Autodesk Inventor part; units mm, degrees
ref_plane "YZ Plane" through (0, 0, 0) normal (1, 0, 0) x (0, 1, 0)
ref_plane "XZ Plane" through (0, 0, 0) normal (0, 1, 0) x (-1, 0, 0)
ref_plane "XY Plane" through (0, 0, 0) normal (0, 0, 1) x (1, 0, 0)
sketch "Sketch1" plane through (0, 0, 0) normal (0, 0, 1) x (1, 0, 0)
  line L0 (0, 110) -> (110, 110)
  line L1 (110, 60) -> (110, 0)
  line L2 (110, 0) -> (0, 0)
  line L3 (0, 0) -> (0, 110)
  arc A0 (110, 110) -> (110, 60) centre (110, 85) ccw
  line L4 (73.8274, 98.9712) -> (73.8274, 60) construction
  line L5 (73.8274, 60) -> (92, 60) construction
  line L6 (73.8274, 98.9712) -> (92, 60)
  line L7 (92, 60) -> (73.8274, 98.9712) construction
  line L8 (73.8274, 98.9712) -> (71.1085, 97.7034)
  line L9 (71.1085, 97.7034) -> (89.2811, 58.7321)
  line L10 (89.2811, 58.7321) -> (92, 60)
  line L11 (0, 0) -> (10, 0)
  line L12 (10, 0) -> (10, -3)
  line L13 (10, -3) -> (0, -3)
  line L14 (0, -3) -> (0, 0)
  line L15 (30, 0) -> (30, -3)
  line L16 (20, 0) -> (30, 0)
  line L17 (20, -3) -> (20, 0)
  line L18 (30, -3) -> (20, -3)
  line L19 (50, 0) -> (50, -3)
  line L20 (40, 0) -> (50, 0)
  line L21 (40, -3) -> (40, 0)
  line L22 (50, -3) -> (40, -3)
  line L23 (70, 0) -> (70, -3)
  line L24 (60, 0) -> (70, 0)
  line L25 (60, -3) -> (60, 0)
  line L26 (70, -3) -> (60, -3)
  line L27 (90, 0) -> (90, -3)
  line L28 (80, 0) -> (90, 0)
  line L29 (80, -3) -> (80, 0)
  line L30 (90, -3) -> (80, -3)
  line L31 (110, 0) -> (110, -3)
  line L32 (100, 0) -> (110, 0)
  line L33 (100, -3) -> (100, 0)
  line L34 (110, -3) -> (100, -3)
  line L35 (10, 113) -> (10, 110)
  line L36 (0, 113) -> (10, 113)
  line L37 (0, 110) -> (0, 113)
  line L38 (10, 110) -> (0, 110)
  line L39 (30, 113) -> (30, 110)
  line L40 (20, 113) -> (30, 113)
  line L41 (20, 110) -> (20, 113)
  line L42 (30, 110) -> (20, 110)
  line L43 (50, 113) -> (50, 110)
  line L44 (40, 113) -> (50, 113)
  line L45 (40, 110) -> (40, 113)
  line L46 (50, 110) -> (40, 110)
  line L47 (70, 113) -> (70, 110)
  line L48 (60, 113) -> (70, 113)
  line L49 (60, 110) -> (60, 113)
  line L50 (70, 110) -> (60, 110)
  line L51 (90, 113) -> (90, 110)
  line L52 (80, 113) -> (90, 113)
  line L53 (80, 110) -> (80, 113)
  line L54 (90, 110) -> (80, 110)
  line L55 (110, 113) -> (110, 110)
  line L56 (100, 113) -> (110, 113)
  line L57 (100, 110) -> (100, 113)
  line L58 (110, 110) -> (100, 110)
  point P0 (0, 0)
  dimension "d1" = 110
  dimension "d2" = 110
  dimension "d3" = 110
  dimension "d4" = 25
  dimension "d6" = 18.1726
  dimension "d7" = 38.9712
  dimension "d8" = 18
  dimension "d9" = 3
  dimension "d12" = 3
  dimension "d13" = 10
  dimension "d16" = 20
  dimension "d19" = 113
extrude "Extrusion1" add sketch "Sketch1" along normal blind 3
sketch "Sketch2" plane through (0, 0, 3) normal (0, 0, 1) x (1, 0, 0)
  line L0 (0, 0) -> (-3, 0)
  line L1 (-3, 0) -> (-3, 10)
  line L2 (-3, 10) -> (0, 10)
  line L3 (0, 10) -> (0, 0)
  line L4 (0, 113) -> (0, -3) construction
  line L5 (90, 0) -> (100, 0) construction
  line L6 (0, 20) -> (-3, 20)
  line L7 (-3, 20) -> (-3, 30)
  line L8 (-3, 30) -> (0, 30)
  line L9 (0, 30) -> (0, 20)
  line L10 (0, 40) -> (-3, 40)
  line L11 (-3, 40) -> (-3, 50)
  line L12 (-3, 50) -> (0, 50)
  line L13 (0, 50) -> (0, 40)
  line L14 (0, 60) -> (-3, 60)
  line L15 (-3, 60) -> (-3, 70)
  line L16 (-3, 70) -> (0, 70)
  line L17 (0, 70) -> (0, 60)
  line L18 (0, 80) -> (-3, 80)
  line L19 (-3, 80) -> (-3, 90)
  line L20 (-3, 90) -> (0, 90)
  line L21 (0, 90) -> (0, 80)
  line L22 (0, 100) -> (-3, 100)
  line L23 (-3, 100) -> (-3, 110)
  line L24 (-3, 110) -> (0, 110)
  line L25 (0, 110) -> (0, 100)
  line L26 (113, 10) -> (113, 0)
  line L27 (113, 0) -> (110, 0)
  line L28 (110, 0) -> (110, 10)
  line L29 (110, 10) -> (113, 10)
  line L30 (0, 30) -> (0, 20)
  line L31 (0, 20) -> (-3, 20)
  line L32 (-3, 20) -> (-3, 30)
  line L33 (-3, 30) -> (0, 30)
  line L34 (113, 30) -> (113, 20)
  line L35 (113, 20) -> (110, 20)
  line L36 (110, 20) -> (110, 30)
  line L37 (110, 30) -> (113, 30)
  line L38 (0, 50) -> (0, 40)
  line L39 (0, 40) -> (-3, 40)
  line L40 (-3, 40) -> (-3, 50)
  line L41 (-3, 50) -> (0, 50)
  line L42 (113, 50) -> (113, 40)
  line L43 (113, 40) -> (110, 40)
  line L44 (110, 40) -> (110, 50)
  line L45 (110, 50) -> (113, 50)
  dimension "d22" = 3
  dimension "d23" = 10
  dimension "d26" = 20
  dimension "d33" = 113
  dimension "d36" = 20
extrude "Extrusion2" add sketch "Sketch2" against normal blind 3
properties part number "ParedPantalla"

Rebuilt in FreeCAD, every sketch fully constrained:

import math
import FreeCAD as App
import Part
import Sketcher

V = App.Vector
Q = App.Units.Quantity

doc = App.newDocument("Part")
params = doc.addObject("Spreadsheet::Sheet", "Params")
for row, (alias, value) in enumerate([
    ("sketch1_radius", "25 mm"),
    ("sketch1_width", "10 mm"),
    ("sketch1_height", "3 mm"),
    ("sketch1_length", "3 mm"),
    ("sketch1_length2", "43 mm"),
    ("pad1_length", "3 mm"),
    ("sketch2_width", "3 mm"),
    ("sketch2_height", "10 mm"),
    ("pad2_length", "3 mm"),
], start=1):
    params.set(f"A{row}", alias)
    params.set(f"B{row}", "=" + value)
    params.setAlias(f"B{row}", alias)

body = doc.addObject("PartDesign::Body", "Body")

sketch1 = body.newObject("Sketcher::SketchObject", "Sketch")
sketch1.AttachmentSupport = (doc.getObject("XY_Plane"), [""])
sketch1.MapMode = "FlatFace"
sketch1.addGeometry([
    Part.LineSegment(V(0, 113, 0), V(0, -3, 0)),
    Part.LineSegment(V(0, -3, 0), V(10, -3, 0)),
    Part.LineSegment(V(10, -3, 0), V(10, 0, 0)),
    Part.LineSegment(V(10, 0, 0), V(20, 0, 0)),
    Part.LineSegment(V(20, 0, 0), V(20, -3, 0)),
    Part.LineSegment(V(20, -3, 0), V(30, -3, 0)),
    Part.LineSegment(V(30, -3, 0), V(30, 0, 0)),
    Part.LineSegment(V(30, 0, 0), V(40, 0, 0)),
    Part.LineSegment(V(40, 0, 0), V(40, -3, 0)),
    Part.LineSegment(V(40, -3, 0), V(50, -3, 0)),
    Part.LineSegment(V(50, -3, 0), V(50, 0, 0)),
    Part.LineSegment(V(50, 0, 0), V(60, 0, 0)),
    Part.LineSegment(V(60, 0, 0), V(60, -3, 0)),
    Part.LineSegment(V(60, -3, 0), V(70, -3, 0)),
    Part.LineSegment(V(70, -3, 0), V(70, 0, 0)),
    Part.LineSegment(V(70, 0, 0), V(80, 0, 0)),
    Part.LineSegment(V(80, 0, 0), V(80, -3, 0)),
    Part.LineSegment(V(80, -3, 0), V(90, -3, 0)),
    Part.LineSegment(V(90, -3, 0), V(90, 0, 0)),
    Part.LineSegment(V(90, 0, 0), V(100, 0, 0)),
    Part.LineSegment(V(100, 0, 0), V(100, -3, 0)),
    Part.LineSegment(V(100, -3, 0), V(110, -3, 0)),
    Part.LineSegment(V(110, -3, 0), V(110, 60, 0)),
    Part.ArcOfCircle(Part.Circle(V(110, 85, 0), V(0, 0, 1), 25), math.radians(90), math.radians(270)),
    Part.LineSegment(V(110, 110, 0), V(110, 113, 0)),
    Part.LineSegment(V(110, 113, 0), V(100, 113, 0)),
    Part.LineSegment(V(100, 113, 0), V(100, 110, 0)),
    Part.LineSegment(V(100, 110, 0), V(90, 110, 0)),
    Part.LineSegment(V(90, 110, 0), V(90, 113, 0)),
    Part.LineSegment(V(90, 113, 0), V(80, 113, 0)),
    Part.LineSegment(V(80, 113, 0), V(80, 110, 0)),
    Part.LineSegment(V(80, 110, 0), V(70, 110, 0)),
    Part.LineSegment(V(70, 110, 0), V(70, 113, 0)),
    Part.LineSegment(V(70, 113, 0), V(60, 113, 0)),
    Part.LineSegment(V(60, 113, 0), V(60, 110, 0)),
    Part.LineSegment(V(60, 110, 0), V(50, 110, 0)),
    Part.LineSegment(V(50, 110, 0), V(50, 113, 0)),
    Part.LineSegment(V(50, 113, 0), V(40, 113, 0)),
    Part.LineSegment(V(40, 113, 0), V(40, 110, 0)),
    Part.LineSegment(V(40, 110, 0), V(30, 110, 0)),
    Part.LineSegment(V(30, 110, 0), V(30, 113, 0)),
    Part.LineSegment(V(30, 113, 0), V(20, 113, 0)),
    Part.LineSegment(V(20, 113, 0), V(20, 110, 0)),
    Part.LineSegment(V(20, 110, 0), V(10, 110, 0)),
    Part.LineSegment(V(10, 110, 0), V(10, 113, 0)),
    Part.LineSegment(V(10, 113, 0), V(0, 113, 0)),
    Part.LineSegment(V(73.8, 99, 0), V(92, 60, 0)),
    Part.LineSegment(V(92, 60, 0), V(89.3, 58.7, 0)),
    Part.LineSegment(V(89.3, 58.7, 0), V(71.1, 97.7, 0)),
    Part.LineSegment(V(71.1, 97.7, 0), V(73.8, 99, 0)),
], False)
sketch1.addConstraint([
    Sketcher.Constraint("Coincident", 0, 2, 1, 1),
    Sketcher.Constraint("Coincident", 1, 2, 2, 1),
    Sketcher.Constraint("Coincident", 2, 2, 3, 1),
    Sketcher.Constraint("Coincident", 3, 2, 4, 1),
    Sketcher.Constraint("Coincident", 4, 2, 5, 1),
    Sketcher.Constraint("Coincident", 5, 2, 6, 1),
    Sketcher.Constraint("Coincident", 6, 2, 7, 1),
    Sketcher.Constraint("Coincident", 7, 2, 8, 1),
    Sketcher.Constraint("Coincident", 8, 2, 9, 1),
    Sketcher.Constraint("Coincident", 9, 2, 10, 1),
    Sketcher.Constraint("Coincident", 10, 2, 11, 1),
    Sketcher.Constraint("Coincident", 11, 2, 12, 1),
    Sketcher.Constraint("Coincident", 12, 2, 13, 1),
    Sketcher.Constraint("Coincident", 13, 2, 14, 1),
    Sketcher.Constraint("Coincident", 14, 2, 15, 1),
    Sketcher.Constraint("Coincident", 15, 2, 16, 1),
    Sketcher.Constraint("Coincident", 16, 2, 17, 1),
    Sketcher.Constraint("Coincident", 17, 2, 18, 1),
    Sketcher.Constraint("Coincident", 18, 2, 19, 1),
    Sketcher.Constraint("Coincident", 19, 2, 20, 1),
    Sketcher.Constraint("Coincident", 20, 2, 21, 1),
    Sketcher.Constraint("Coincident", 21, 2, 22, 1),
    Sketcher.Constraint("Coincident", 22, 2, 23, 2),
    Sketcher.Constraint("Coincident", 23, 1, 24, 1),
    Sketcher.Constraint("Coincident", 24, 2, 25, 1),
    Sketcher.Constraint("Coincident", 25, 2, 26, 1),
    Sketcher.Constraint("Coincident", 26, 2, 27, 1),
    Sketcher.Constraint("Coincident", 27, 2, 28, 1),
    Sketcher.Constraint("Coincident", 28, 2, 29, 1),
    Sketcher.Constraint("Coincident", 29, 2, 30, 1),
    Sketcher.Constraint("Coincident", 30, 2, 31, 1),
    Sketcher.Constraint("Coincident", 31, 2, 32, 1),
    Sketcher.Constraint("Coincident", 32, 2, 33, 1),
    Sketcher.Constraint("Coincident", 33, 2, 34, 1),
    Sketcher.Constraint("Coincident", 34, 2, 35, 1),
    Sketcher.Constraint("Coincident", 35, 2, 36, 1),
    Sketcher.Constraint("Coincident", 36, 2, 37, 1),
    Sketcher.Constraint("Coincident", 37, 2, 38, 1),
    Sketcher.Constraint("Coincident", 38, 2, 39, 1),
    Sketcher.Constraint("Coincident", 39, 2, 40, 1),
    Sketcher.Constraint("Coincident", 40, 2, 41, 1),
    Sketcher.Constraint("Coincident", 41, 2, 42, 1),
    Sketcher.Constraint("Coincident", 42, 2, 43, 1),
    Sketcher.Constraint("Coincident", 43, 2, 44, 1),
    Sketcher.Constraint("Coincident", 44, 2, 45, 1),
    Sketcher.Constraint("Coincident", 45, 2, 0, 1),
    Sketcher.Constraint("Coincident", 46, 2, 47, 1),
    Sketcher.Constraint("Coincident", 47, 2, 48, 1),
    Sketcher.Constraint("Coincident", 48, 2, 49, 1),
    Sketcher.Constraint("Coincident", 49, 2, 46, 1),
    Sketcher.Constraint("Vertical", 0),
    Sketcher.Constraint("Horizontal", 1),
    Sketcher.Constraint("Vertical", 2),
    Sketcher.Constraint("Horizontal", 3),
    Sketcher.Constraint("Vertical", 4),
    Sketcher.Constraint("Horizontal", 5),
    Sketcher.Constraint("Vertical", 6),
    Sketcher.Constraint("Horizontal", 7),
    Sketcher.Constraint("Vertical", 8),
    Sketcher.Constraint("Horizontal", 9),
    Sketcher.Constraint("Vertical", 10),
    Sketcher.Constraint("Horizontal", 11),
    Sketcher.Constraint("Vertical", 12),
    Sketcher.Constraint("Horizontal", 13),
    Sketcher.Constraint("Vertical", 14),
    Sketcher.Constraint("Horizontal", 15),
    Sketcher.Constraint("Vertical", 16),
    Sketcher.Constraint("Horizontal", 17),
    Sketcher.Constraint("Vertical", 18),
    Sketcher.Constraint("Horizontal", 19),
    Sketcher.Constraint("Vertical", 20),
    Sketcher.Constraint("Horizontal", 21),
    Sketcher.Constraint("Vertical", 22),
    Sketcher.Constraint("Vertical", 24),
    Sketcher.Constraint("Horizontal", 25),
    Sketcher.Constraint("Vertical", 26),
    Sketcher.Constraint("Horizontal", 27),
    Sketcher.Constraint("Vertical", 28),
    Sketcher.Constraint("Horizontal", 29),
    Sketcher.Constraint("Vertical", 30),
    Sketcher.Constraint("Horizontal", 31),
    Sketcher.Constraint("Vertical", 32),
    Sketcher.Constraint("Horizontal", 33),
    Sketcher.Constraint("Vertical", 34),
    Sketcher.Constraint("Horizontal", 35),
    Sketcher.Constraint("Vertical", 36),
    Sketcher.Constraint("Horizontal", 37),
    Sketcher.Constraint("Vertical", 38),
    Sketcher.Constraint("Horizontal", 39),
    Sketcher.Constraint("Vertical", 40),
    Sketcher.Constraint("Horizontal", 41),
    Sketcher.Constraint("Vertical", 42),
    Sketcher.Constraint("Horizontal", 43),
    Sketcher.Constraint("Vertical", 44),
    Sketcher.Constraint("Horizontal", 45),
    Sketcher.Constraint("PointOnObject", 0, 2, -2),
    Sketcher.Constraint("PointOnObject", 2, 2, -1),
    Sketcher.Constraint("PointOnObject", 6, 2, -1),
    Sketcher.Constraint("PointOnObject", 10, 2, -1),
    Sketcher.Constraint("PointOnObject", 14, 2, -1),
    Sketcher.Constraint("PointOnObject", 18, 2, -1),
    Sketcher.Constraint("Perpendicular", 46, 47),
    Sketcher.Constraint("Perpendicular", 47, 48),
    Sketcher.Constraint("Perpendicular", 48, 49),
    Sketcher.Constraint("Horizontal", 1, 2, 4, 2),
    Sketcher.Constraint("Horizontal", 5, 2, 8, 2),
    Sketcher.Constraint("Horizontal", 9, 2, 12, 2),
    Sketcher.Constraint("Horizontal", 13, 2, 16, 2),
    Sketcher.Constraint("Horizontal", 17, 2, 20, 2),
    Sketcher.Constraint("Horizontal", 23, 1, 26, 2),
    Sketcher.Constraint("Horizontal", 25, 2, 28, 2),
    Sketcher.Constraint("Horizontal", 27, 2, 30, 2),
    Sketcher.Constraint("Horizontal", 29, 2, 32, 2),
    Sketcher.Constraint("Horizontal", 31, 2, 34, 2),
    Sketcher.Constraint("Horizontal", 33, 2, 36, 2),
    Sketcher.Constraint("Horizontal", 35, 2, 38, 2),
    Sketcher.Constraint("Horizontal", 37, 2, 40, 2),
    Sketcher.Constraint("Horizontal", 39, 2, 42, 2),
    Sketcher.Constraint("Horizontal", 41, 2, 44, 2),
    Sketcher.Constraint("Horizontal", 22, 2, 46, 2),
    Sketcher.Constraint("Vertical", 23, 3, 21, 2),
    Sketcher.Constraint("Vertical", 22, 2, 23, 1),
    Sketcher.Constraint("Vertical", 20, 2, 25, 2),
    Sketcher.Constraint("Vertical", 18, 2, 27, 2),
    Sketcher.Constraint("Vertical", 16, 2, 29, 2),
    Sketcher.Constraint("Vertical", 14, 2, 31, 2),
    Sketcher.Constraint("Vertical", 12, 2, 33, 2),
    Sketcher.Constraint("Vertical", 10, 2, 35, 2),
    Sketcher.Constraint("Vertical", 8, 2, 37, 2),
    Sketcher.Constraint("Vertical", 6, 2, 39, 2),
    Sketcher.Constraint("Vertical", 4, 2, 41, 2),
    Sketcher.Constraint("Vertical", 2, 2, 43, 2),
    Sketcher.Constraint("Equal", 1, 3),
    Sketcher.Constraint("Equal", 3, 5),
    Sketcher.Constraint("Equal", 5, 7),
    Sketcher.Constraint("Equal", 7, 9),
    Sketcher.Constraint("Equal", 9, 11),
    Sketcher.Constraint("Equal", 11, 13),
    Sketcher.Constraint("Equal", 13, 15),
    Sketcher.Constraint("Equal", 15, 17),
    Sketcher.Constraint("Equal", 17, 19),
    Sketcher.Constraint("Equal", 19, 21),
    Sketcher.Constraint("Equal", 20, 24),
    Sketcher.Constraint("Radius", 23, 25.0),
    Sketcher.Constraint("DistanceX", 1, 1, 1, 2, 10.0),
    Sketcher.Constraint("DistanceY", 2, 1, 2, 2, 3.0),
    Sketcher.Constraint("Distance", 47, 3.0),
    Sketcher.Constraint("DistanceY", -1, 1, 23, 1, 110.0),
    Sketcher.Constraint("DistanceX", 46, 2, 22, 2, 18.0),
    Sketcher.Constraint("Angle", 46, Q("-65 deg")),
    Sketcher.Constraint("Distance", 46, 43.0),
])
sketch1.setExpression("Constraints[143]", "Params.sketch1_radius")
sketch1.setExpression("Constraints[144]", "Params.sketch1_width")
sketch1.setExpression("Constraints[145]", "Params.sketch1_height")
sketch1.setExpression("Constraints[146]", "Params.sketch1_length")
sketch1.setExpression("Constraints[150]", "Params.sketch1_length2")
pad1 = body.newObject("PartDesign::Pad", "Pad")
pad1.Profile = sketch1
pad1.setExpression("Length", "Params.pad1_length")

sketch2 = body.newObject("Sketcher::SketchObject", "Sketch001")
sketch2.AttachmentSupport = (doc.getObject("XY_Plane"), [""])
sketch2.MapMode = "FlatFace"
sketch2.AttachmentOffset = App.Placement(V(0, 0, 3), App.Rotation())
sketch2.addGeometry([
    Part.LineSegment(V(-3, 0, 0), V(0, 0, 0)),
    Part.LineSegment(V(0, 0, 0), V(0, 10, 0)),
    Part.LineSegment(V(0, 10, 0), V(-3, 10, 0)),
    Part.LineSegment(V(-3, 10, 0), V(-3, 0, 0)),
    Part.LineSegment(V(-3, 20, 0), V(0, 20, 0)),
    Part.LineSegment(V(0, 20, 0), V(0, 30, 0)),
    Part.LineSegment(V(0, 30, 0), V(-3, 30, 0)),
    Part.LineSegment(V(-3, 30, 0), V(-3, 20, 0)),
    Part.LineSegment(V(-3, 40, 0), V(0, 40, 0)),
    Part.LineSegment(V(0, 40, 0), V(0, 50, 0)),
    Part.LineSegment(V(0, 50, 0), V(-3, 50, 0)),
    Part.LineSegment(V(-3, 50, 0), V(-3, 40, 0)),
    Part.LineSegment(V(-3, 60, 0), V(0, 60, 0)),
    Part.LineSegment(V(0, 60, 0), V(0, 70, 0)),
    Part.LineSegment(V(0, 70, 0), V(-3, 70, 0)),
    Part.LineSegment(V(-3, 70, 0), V(-3, 60, 0)),
    Part.LineSegment(V(-3, 80, 0), V(0, 80, 0)),
    Part.LineSegment(V(0, 80, 0), V(0, 90, 0)),
    Part.LineSegment(V(0, 90, 0), V(-3, 90, 0)),
    Part.LineSegment(V(-3, 90, 0), V(-3, 80, 0)),
    Part.LineSegment(V(-3, 100, 0), V(0, 100, 0)),
    Part.LineSegment(V(0, 100, 0), V(0, 110, 0)),
    Part.LineSegment(V(0, 110, 0), V(-3, 110, 0)),
    Part.LineSegment(V(-3, 110, 0), V(-3, 100, 0)),
    Part.LineSegment(V(113, 0, 0), V(113, 10, 0)),
    Part.LineSegment(V(113, 10, 0), V(110, 10, 0)),
    Part.LineSegment(V(110, 10, 0), V(110, 0, 0)),
    Part.LineSegment(V(110, 0, 0), V(113, 0, 0)),
    Part.LineSegment(V(113, 20, 0), V(113, 30, 0)),
    Part.LineSegment(V(113, 30, 0), V(110, 30, 0)),
    Part.LineSegment(V(110, 30, 0), V(110, 20, 0)),
    Part.LineSegment(V(110, 20, 0), V(113, 20, 0)),
    Part.LineSegment(V(113, 40, 0), V(113, 50, 0)),
    Part.LineSegment(V(113, 50, 0), V(110, 50, 0)),
    Part.LineSegment(V(110, 50, 0), V(110, 40, 0)),
    Part.LineSegment(V(110, 40, 0), V(113, 40, 0)),
], False)
sketch2.addConstraint([
    Sketcher.Constraint("Coincident", 0, 2, 1, 1),
    Sketcher.Constraint("Coincident", 1, 2, 2, 1),
    Sketcher.Constraint("Coincident", 2, 2, 3, 1),
    Sketcher.Constraint("Coincident", 3, 2, 0, 1),
    Sketcher.Constraint("Coincident", 4, 2, 5, 1),
    Sketcher.Constraint("Coincident", 5, 2, 6, 1),
    Sketcher.Constraint("Coincident", 6, 2, 7, 1),
    Sketcher.Constraint("Coincident", 7, 2, 4, 1),
    Sketcher.Constraint("Coincident", 8, 2, 9, 1),
    Sketcher.Constraint("Coincident", 9, 2, 10, 1),
    Sketcher.Constraint("Coincident", 10, 2, 11, 1),
    Sketcher.Constraint("Coincident", 11, 2, 8, 1),
    Sketcher.Constraint("Coincident", 12, 2, 13, 1),
    Sketcher.Constraint("Coincident", 13, 2, 14, 1),
    Sketcher.Constraint("Coincident", 14, 2, 15, 1),
    Sketcher.Constraint("Coincident", 15, 2, 12, 1),
    Sketcher.Constraint("Coincident", 16, 2, 17, 1),
    Sketcher.Constraint("Coincident", 17, 2, 18, 1),
    Sketcher.Constraint("Coincident", 18, 2, 19, 1),
    Sketcher.Constraint("Coincident", 19, 2, 16, 1),
    Sketcher.Constraint("Coincident", 20, 2, 21, 1),
    Sketcher.Constraint("Coincident", 21, 2, 22, 1),
    Sketcher.Constraint("Coincident", 22, 2, 23, 1),
    Sketcher.Constraint("Coincident", 23, 2, 20, 1),
    Sketcher.Constraint("Coincident", 24, 2, 25, 1),
    Sketcher.Constraint("Coincident", 25, 2, 26, 1),
    Sketcher.Constraint("Coincident", 26, 2, 27, 1),
    Sketcher.Constraint("Coincident", 27, 2, 24, 1),
    Sketcher.Constraint("Coincident", 28, 2, 29, 1),
    Sketcher.Constraint("Coincident", 29, 2, 30, 1),
    Sketcher.Constraint("Coincident", 30, 2, 31, 1),
    Sketcher.Constraint("Coincident", 31, 2, 28, 1),
    Sketcher.Constraint("Coincident", 32, 2, 33, 1),
    Sketcher.Constraint("Coincident", 33, 2, 34, 1),
    Sketcher.Constraint("Coincident", 34, 2, 35, 1),
    Sketcher.Constraint("Coincident", 35, 2, 32, 1),
    Sketcher.Constraint("Horizontal", 0),
    Sketcher.Constraint("Vertical", 1),
    Sketcher.Constraint("Horizontal", 2),
    Sketcher.Constraint("Vertical", 3),
    Sketcher.Constraint("Horizontal", 4),
    Sketcher.Constraint("Vertical", 5),
    Sketcher.Constraint("Horizontal", 6),
    Sketcher.Constraint("Vertical", 7),
    Sketcher.Constraint("Horizontal", 8),
    Sketcher.Constraint("Vertical", 9),
    Sketcher.Constraint("Horizontal", 10),
    Sketcher.Constraint("Vertical", 11),
    Sketcher.Constraint("Horizontal", 12),
    Sketcher.Constraint("Vertical", 13),
    Sketcher.Constraint("Horizontal", 14),
    Sketcher.Constraint("Vertical", 15),
    Sketcher.Constraint("Horizontal", 16),
    Sketcher.Constraint("Vertical", 17),
    Sketcher.Constraint("Horizontal", 18),
    Sketcher.Constraint("Vertical", 19),
    Sketcher.Constraint("Horizontal", 20),
    Sketcher.Constraint("Vertical", 21),
    Sketcher.Constraint("Horizontal", 22),
    Sketcher.Constraint("Vertical", 23),
    Sketcher.Constraint("Vertical", 24),
    Sketcher.Constraint("Horizontal", 25),
    Sketcher.Constraint("Vertical", 26),
    Sketcher.Constraint("Horizontal", 27),
    Sketcher.Constraint("Vertical", 28),
    Sketcher.Constraint("Horizontal", 29),
    Sketcher.Constraint("Vertical", 30),
    Sketcher.Constraint("Horizontal", 31),
    Sketcher.Constraint("Vertical", 32),
    Sketcher.Constraint("Horizontal", 33),
    Sketcher.Constraint("Vertical", 34),
    Sketcher.Constraint("Horizontal", 35),
    Sketcher.Constraint("Coincident", 0, 2, -1, 1),
    Sketcher.Constraint("PointOnObject", 4, 2, -2),
    Sketcher.Constraint("PointOnObject", 8, 2, -2),
    Sketcher.Constraint("PointOnObject", 12, 2, -2),
    Sketcher.Constraint("PointOnObject", 16, 2, -2),
    Sketcher.Constraint("PointOnObject", 20, 2, -2),
    Sketcher.Constraint("PointOnObject", 26, 2, -1),
    Sketcher.Constraint("Horizontal", 2, 2, 24, 2),
    Sketcher.Constraint("Horizontal", 6, 2, 28, 2),
    Sketcher.Constraint("Horizontal", 7, 2, 30, 2),
    Sketcher.Constraint("Horizontal", 10, 2, 32, 2),
    Sketcher.Constraint("Horizontal", 11, 2, 34, 2),
    Sketcher.Constraint("Vertical", 3, 2, 6, 2),
    Sketcher.Constraint("Vertical", 7, 2, 10, 2),
    Sketcher.Constraint("Vertical", 11, 2, 14, 2),
    Sketcher.Constraint("Vertical", 15, 2, 18, 2),
    Sketcher.Constraint("Vertical", 19, 2, 22, 2),
    Sketcher.Constraint("Vertical", 27, 2, 28, 2),
    Sketcher.Constraint("Vertical", 26, 2, 29, 2),
    Sketcher.Constraint("Vertical", 31, 2, 32, 2),
    Sketcher.Constraint("Vertical", 30, 2, 33, 2),
    Sketcher.Constraint("Equal", 22, 25),
    Sketcher.Constraint("Equal", 3, 5),
    Sketcher.Constraint("Equal", 7, 9),
    Sketcher.Constraint("Equal", 11, 13),
    Sketcher.Constraint("Equal", 15, 17),
    Sketcher.Constraint("Equal", 19, 21),
    Sketcher.Constraint("DistanceX", 0, 1, 0, 2, 3.0),
    Sketcher.Constraint("DistanceY", 1, 1, 1, 2, 10.0),
    Sketcher.Constraint("DistanceY", -1, 1, 4, 2, 20.0),
    Sketcher.Constraint("DistanceX", -1, 1, 24, 2, 113.0),
    Sketcher.Constraint("DistanceY", 5, 2, 8, 2, 10.0),
    Sketcher.Constraint("DistanceY", 9, 2, 12, 2, 10.0),
    Sketcher.Constraint("DistanceY", 13, 2, 16, 2, 10.0),
    Sketcher.Constraint("DistanceY", 17, 2, 20, 2, 10.0),
])
sketch2.setExpression("Constraints[99]", "Params.sketch2_width")
sketch2.setExpression("Constraints[100]", "Params.sketch2_height")
pad2 = body.newObject("PartDesign::Pad", "Pad001")
pad2.Profile = sketch2
pad2.setExpression("Length", "Params.pad2_length")
pad2.Reversed = True

doc.recompute()
